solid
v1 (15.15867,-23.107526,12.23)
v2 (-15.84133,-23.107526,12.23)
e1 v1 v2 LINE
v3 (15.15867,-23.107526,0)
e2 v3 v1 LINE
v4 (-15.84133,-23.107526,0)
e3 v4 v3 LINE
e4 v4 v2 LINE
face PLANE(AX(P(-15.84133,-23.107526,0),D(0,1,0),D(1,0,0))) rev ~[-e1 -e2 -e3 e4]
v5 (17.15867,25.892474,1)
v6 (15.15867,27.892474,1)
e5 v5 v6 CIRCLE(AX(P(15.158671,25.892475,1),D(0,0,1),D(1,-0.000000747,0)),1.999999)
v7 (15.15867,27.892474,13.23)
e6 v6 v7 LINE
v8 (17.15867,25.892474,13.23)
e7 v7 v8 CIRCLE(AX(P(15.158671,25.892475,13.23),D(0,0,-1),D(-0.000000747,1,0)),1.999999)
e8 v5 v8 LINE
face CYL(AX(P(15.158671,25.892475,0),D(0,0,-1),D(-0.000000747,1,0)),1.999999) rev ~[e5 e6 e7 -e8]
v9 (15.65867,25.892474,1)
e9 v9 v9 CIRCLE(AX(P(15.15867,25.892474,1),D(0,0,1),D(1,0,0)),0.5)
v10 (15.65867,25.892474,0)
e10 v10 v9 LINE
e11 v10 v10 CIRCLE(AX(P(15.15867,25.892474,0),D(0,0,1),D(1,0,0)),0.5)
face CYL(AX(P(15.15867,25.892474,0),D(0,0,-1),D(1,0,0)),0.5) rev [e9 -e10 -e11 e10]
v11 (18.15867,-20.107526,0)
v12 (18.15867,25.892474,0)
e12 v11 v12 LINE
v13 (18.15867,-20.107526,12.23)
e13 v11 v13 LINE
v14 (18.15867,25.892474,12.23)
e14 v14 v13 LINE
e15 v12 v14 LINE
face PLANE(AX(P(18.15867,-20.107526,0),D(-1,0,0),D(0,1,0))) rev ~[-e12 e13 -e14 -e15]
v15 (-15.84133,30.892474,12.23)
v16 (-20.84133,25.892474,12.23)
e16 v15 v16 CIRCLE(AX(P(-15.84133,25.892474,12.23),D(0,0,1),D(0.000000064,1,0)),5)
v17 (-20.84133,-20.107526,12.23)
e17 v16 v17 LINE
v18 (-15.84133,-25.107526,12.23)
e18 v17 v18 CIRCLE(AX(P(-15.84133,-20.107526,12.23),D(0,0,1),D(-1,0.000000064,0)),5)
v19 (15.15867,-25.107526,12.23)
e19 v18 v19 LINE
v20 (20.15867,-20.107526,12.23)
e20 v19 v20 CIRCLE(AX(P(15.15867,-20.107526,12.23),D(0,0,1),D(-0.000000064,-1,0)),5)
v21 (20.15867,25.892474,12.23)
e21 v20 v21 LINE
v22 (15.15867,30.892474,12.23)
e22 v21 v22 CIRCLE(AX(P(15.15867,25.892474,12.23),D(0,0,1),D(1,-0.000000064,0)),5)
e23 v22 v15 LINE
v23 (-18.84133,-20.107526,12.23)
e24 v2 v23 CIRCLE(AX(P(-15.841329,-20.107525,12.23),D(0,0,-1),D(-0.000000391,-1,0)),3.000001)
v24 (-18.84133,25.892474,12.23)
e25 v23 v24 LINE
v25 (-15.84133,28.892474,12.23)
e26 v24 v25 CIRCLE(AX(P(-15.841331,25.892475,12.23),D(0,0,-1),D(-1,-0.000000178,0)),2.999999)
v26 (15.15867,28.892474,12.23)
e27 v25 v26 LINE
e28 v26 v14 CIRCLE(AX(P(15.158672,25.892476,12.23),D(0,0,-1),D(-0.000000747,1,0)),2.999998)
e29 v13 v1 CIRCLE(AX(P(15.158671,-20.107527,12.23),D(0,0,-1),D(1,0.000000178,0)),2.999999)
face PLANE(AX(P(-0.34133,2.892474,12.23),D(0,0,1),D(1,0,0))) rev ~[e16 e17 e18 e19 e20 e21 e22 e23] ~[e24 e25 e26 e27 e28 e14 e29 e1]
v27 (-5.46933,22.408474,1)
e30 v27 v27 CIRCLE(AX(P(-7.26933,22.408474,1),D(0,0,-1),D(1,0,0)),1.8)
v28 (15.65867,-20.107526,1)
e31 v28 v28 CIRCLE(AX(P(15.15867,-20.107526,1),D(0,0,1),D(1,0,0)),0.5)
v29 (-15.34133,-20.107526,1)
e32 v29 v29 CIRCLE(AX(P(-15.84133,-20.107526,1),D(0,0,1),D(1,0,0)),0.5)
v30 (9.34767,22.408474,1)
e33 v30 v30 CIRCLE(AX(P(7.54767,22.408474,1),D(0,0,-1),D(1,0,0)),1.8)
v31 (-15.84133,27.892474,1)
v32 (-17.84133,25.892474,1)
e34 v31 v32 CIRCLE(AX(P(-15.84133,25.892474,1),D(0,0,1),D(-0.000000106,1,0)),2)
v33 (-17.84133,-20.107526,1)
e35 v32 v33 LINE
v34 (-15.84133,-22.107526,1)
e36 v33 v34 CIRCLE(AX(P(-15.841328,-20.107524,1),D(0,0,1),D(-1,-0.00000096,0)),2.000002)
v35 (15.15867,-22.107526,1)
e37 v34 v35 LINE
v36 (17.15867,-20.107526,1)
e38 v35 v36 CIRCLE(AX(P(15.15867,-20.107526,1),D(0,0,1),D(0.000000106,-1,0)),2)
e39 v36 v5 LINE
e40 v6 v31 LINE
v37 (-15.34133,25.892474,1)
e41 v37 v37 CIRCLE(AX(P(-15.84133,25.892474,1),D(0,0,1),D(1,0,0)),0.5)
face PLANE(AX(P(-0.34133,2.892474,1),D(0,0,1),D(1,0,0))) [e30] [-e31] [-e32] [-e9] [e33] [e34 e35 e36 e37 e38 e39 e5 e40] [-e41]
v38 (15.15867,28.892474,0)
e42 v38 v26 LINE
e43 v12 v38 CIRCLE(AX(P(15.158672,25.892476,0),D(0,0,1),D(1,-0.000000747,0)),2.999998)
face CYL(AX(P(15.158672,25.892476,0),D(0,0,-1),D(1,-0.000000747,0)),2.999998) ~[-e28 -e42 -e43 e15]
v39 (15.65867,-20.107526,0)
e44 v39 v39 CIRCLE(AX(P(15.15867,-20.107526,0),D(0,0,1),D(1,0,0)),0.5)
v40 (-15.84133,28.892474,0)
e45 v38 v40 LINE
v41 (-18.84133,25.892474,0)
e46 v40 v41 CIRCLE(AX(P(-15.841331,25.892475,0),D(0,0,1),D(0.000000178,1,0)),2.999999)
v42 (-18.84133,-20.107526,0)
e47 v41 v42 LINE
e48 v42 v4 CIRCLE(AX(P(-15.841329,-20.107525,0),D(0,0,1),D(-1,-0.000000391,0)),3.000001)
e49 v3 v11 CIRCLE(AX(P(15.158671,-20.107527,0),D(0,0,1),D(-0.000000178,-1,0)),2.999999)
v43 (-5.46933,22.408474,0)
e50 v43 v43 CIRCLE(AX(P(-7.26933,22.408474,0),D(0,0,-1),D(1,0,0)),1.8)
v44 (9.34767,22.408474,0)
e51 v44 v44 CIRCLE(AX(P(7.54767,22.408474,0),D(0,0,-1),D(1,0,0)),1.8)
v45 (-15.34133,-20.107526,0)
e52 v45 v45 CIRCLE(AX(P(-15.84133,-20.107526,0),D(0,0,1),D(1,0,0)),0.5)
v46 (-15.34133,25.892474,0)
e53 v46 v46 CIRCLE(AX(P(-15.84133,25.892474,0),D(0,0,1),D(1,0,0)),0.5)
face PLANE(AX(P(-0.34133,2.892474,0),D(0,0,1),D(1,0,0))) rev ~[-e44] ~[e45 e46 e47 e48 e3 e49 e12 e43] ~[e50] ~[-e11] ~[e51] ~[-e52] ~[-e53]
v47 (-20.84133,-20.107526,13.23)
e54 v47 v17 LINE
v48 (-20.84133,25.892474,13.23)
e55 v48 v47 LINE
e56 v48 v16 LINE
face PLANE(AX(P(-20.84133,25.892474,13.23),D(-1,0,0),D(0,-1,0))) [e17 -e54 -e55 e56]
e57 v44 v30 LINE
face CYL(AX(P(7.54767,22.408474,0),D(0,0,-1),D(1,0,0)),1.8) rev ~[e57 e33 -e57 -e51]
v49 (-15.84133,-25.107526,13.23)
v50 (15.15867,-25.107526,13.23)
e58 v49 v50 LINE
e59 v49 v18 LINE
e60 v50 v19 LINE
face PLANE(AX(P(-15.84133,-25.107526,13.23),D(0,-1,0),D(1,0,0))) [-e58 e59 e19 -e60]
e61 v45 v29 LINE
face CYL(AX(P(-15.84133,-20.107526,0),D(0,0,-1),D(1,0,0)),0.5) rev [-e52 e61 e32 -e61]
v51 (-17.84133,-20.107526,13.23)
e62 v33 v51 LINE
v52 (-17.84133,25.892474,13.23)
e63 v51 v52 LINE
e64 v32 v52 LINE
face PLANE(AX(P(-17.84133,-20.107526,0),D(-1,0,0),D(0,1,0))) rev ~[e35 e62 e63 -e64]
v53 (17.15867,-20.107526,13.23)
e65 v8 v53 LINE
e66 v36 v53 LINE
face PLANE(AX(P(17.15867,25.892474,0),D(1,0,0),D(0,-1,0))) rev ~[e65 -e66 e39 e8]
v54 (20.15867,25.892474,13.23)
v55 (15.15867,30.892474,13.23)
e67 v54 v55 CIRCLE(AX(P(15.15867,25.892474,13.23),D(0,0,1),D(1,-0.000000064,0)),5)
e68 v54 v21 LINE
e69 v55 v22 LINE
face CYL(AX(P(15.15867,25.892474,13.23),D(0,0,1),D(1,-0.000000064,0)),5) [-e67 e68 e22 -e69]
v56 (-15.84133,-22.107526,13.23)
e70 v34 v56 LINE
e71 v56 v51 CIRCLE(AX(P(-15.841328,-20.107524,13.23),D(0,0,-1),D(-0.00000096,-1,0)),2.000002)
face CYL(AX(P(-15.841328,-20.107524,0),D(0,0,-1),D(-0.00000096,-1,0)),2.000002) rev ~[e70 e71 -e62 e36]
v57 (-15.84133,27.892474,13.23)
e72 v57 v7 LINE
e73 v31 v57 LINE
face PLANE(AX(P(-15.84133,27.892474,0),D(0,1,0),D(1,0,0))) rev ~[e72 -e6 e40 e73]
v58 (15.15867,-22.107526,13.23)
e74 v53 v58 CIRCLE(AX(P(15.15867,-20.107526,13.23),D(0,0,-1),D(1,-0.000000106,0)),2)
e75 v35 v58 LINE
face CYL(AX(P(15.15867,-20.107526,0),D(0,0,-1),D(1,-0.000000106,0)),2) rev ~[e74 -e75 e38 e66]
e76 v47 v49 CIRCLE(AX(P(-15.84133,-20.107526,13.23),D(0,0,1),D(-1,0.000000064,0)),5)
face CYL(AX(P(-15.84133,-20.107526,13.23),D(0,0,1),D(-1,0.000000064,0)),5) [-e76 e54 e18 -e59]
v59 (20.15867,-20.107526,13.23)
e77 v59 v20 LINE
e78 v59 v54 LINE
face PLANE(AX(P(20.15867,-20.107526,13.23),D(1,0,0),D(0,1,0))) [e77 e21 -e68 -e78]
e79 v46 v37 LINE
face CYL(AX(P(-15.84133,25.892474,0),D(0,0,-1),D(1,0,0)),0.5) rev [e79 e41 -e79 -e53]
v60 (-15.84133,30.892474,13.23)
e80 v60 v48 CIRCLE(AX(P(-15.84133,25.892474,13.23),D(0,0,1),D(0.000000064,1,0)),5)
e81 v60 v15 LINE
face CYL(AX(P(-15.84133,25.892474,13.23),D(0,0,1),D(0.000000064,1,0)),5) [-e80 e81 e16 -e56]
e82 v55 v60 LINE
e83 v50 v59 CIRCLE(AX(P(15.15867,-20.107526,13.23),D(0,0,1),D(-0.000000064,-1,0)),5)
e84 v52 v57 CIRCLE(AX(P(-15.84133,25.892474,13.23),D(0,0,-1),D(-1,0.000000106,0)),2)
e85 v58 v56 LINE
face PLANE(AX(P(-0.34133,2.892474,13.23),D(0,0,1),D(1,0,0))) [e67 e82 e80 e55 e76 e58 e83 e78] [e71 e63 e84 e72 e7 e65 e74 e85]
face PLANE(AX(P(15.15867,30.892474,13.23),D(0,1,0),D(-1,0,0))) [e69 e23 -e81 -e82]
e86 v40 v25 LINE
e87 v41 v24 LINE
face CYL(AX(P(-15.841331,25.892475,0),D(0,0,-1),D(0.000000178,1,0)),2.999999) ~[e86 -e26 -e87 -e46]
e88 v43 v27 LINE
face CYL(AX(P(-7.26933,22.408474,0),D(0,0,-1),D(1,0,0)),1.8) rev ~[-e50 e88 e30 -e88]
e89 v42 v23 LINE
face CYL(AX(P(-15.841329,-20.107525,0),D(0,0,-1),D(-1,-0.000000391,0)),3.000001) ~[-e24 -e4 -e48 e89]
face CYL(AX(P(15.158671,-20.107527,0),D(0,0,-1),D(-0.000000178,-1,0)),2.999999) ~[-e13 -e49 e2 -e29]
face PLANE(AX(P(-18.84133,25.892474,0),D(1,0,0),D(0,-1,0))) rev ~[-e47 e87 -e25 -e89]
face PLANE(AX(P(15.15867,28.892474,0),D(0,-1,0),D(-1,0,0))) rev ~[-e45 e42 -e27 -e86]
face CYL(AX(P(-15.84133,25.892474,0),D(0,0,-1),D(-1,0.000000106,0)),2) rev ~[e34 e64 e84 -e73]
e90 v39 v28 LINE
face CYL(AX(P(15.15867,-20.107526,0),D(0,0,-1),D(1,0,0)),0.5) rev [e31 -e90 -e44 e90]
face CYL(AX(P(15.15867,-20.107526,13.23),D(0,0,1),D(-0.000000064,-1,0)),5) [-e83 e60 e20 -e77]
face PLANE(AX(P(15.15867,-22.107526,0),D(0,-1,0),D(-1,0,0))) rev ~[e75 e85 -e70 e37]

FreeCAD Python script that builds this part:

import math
import FreeCAD as App
import Part
import Sketcher

V = App.Vector
Q = App.Units.Quantity

doc = App.newDocument("Part")
body = doc.addObject("PartDesign::Body", "Body")

sketch1 = body.newObject("Sketcher::SketchObject", "Sketch")
sketch1.AttachmentSupport = (doc.getObject("XY_Plane"), [""])
sketch1.MapMode = "FlatFace"
sketch1.addGeometry([
    Part.ArcOfCircle(Part.Circle(V(-15.8, -20.1, 0), V(0, 0, 1), 2), math.radians(-180), math.radians(-90)),
    Part.LineSegment(V(-15.8, -22.1, 0), V(15.2, -22.1, 0)),
    Part.ArcOfCircle(Part.Circle(V(15.2, -20.1, 0), V(0, 0, 1), 2), math.radians(-90), math.radians(0)),
    Part.LineSegment(V(17.2, -20.1, 0), V(17.2, 25.9, 0)),
    Part.ArcOfCircle(Part.Circle(V(15.2, 25.9, 0), V(0, 0, 1), 2), math.radians(0), math.radians(90)),
    Part.LineSegment(V(15.2, 27.9, 0), V(-15.8, 27.9, 0)),
    Part.ArcOfCircle(Part.Circle(V(-15.8, 25.9, 0), V(0, 0, 1), 2), math.radians(90), math.radians(180)),
    Part.LineSegment(V(-17.8, 25.9, 0), V(-17.8, -20.1, 0)),
    Part.Circle(V(-15.8, -20.1, 0), V(0, 0, 1), 0.5),
    Part.Circle(V(15.2, -20.1, 0), V(0, 0, 1), 0.5),
    Part.Circle(V(-15.8, 25.9, 0), V(0, 0, 1), 0.5),
    Part.Circle(V(15.2, 25.9, 0), V(0, 0, 1), 0.5),
], False)
sketch1.addConstraint([
    Sketcher.Constraint("Tangent", 0, 2, 1, 1),
    Sketcher.Constraint("Tangent", 1, 2, 2, 1),
    Sketcher.Constraint("Tangent", 2, 2, 3, 1),
    Sketcher.Constraint("Tangent", 3, 2, 4, 1),
    Sketcher.Constraint("Tangent", 4, 2, 5, 1),
    Sketcher.Constraint("Tangent", 5, 2, 6, 1),
    Sketcher.Constraint("Tangent", 6, 2, 7, 1),
    Sketcher.Constraint("Tangent", 7, 2, 0, 1),
    Sketcher.Constraint("Horizontal", 1),
    Sketcher.Constraint("Vertical", 3),
    Sketcher.Constraint("Horizontal", 5),
    Sketcher.Constraint("Vertical", 7),
    Sketcher.Constraint("Coincident", 8, 3, 0, 3),
    Sketcher.Constraint("Coincident", 9, 3, 2, 3),
    Sketcher.Constraint("Coincident", 10, 3, 6, 3),
    Sketcher.Constraint("Coincident", 11, 3, 4, 3),
    Sketcher.Constraint("Equal", 0, 2),
    Sketcher.Constraint("Equal", 2, 4),
    Sketcher.Constraint("Equal", 4, 6),
    Sketcher.Constraint("Equal", 8, 9),
    Sketcher.Constraint("Equal", 9, 10),
    Sketcher.Constraint("Equal", 10, 11),
    Sketcher.Constraint("Diameter", 8, Q("1 mm")),
    Sketcher.Constraint("Radius", 0, Q("2.000002 mm")),
    Sketcher.Constraint("DistanceX", 1, 1, 1, 2, Q("31 mm")),
    Sketcher.Constraint("DistanceY", 3, 1, 3, 2, Q("46 mm")),
    Sketcher.Constraint("DistanceX", 0, 3, -1, 1, Q("15.841328 mm")),
    Sketcher.Constraint("DistanceY", 0, 3, -1, 1, Q("20.107524 mm")),
])
pad1 = body.newObject("PartDesign::Pad", "Pad")
pad1.Profile = sketch1
pad1.Length = 1

sketch2 = body.newObject("Sketcher::SketchObject", "Sketch001")
sketch2.AttachmentSupport = (doc.getObject("XY_Plane"), [""])
sketch2.MapMode = "FlatFace"
sketch2.addGeometry([
    Part.LineSegment(V(15.2, 28.9, 0), V(-15.8, 28.9, 0)),
    Part.ArcOfCircle(Part.Circle(V(-15.8, 25.9, 0), V(0, 0, 1), 3), math.radians(90), math.radians(180)),
    Part.LineSegment(V(-18.8, 25.9, 0), V(-18.8, -20.1, 0)),
    Part.ArcOfCircle(Part.Circle(V(-15.8, -20.1, 0), V(0, 0, 1), 3), math.radians(-180), math.radians(-90)),
    Part.LineSegment(V(-15.8, -23.1, 0), V(15.2, -23.1, 0)),
    Part.ArcOfCircle(Part.Circle(V(15.2, -20.1, 0), V(0, 0, 1), 3), math.radians(-90), math.radians(0)),
    Part.LineSegment(V(18.2, -20.1, 0), V(18.2, 25.9, 0)),
    Part.ArcOfCircle(Part.Circle(V(15.2, 25.9, 0), V(0, 0, 1), 3), math.radians(0), math.radians(90)),
    Part.ArcOfCircle(Part.Circle(V(15.2, -20.1, 0), V(0, 0, 1), 2), math.radians(-90), math.radians(0)),
    Part.LineSegment(V(15.2, -22.1, 0), V(-15.8, -22.1, 0)),
    Part.ArcOfCircle(Part.Circle(V(-15.8, -20.1, 0), V(0, 0, 1), 2), math.radians(-180), math.radians(-90)),
    Part.LineSegment(V(-17.8, -20.1, 0), V(-17.8, 25.9, 0)),
    Part.ArcOfCircle(Part.Circle(V(-15.8, 25.9, 0), V(0, 0, 1), 2), math.radians(90), math.radians(180)),
    Part.LineSegment(V(-15.8, 27.9, 0), V(15.2, 27.9, 0)),
    Part.ArcOfCircle(Part.Circle(V(15.2, 25.9, 0), V(0, 0, 1), 2), math.radians(0), math.radians(90)),
    Part.LineSegment(V(17.2, 25.9, 0), V(17.2, -20.1, 0)),
], False)
sketch2.addConstraint([
    Sketcher.Constraint("Tangent", 0, 2, 1, 1),
    Sketcher.Constraint("Tangent", 1, 2, 2, 1),
    Sketcher.Constraint("Tangent", 2, 2, 3, 1),
    Sketcher.Constraint("Tangent", 3, 2, 4, 1),
    Sketcher.Constraint("Tangent", 4, 2, 5, 1),
    Sketcher.Constraint("Tangent", 5, 2, 6, 1),
    Sketcher.Constraint("Tangent", 6, 2, 7, 1),
    Sketcher.Constraint("Tangent", 7, 2, 0, 1),
    Sketcher.Constraint("Tangent", 8, 1, 9, 1),
    Sketcher.Constraint("Tangent", 9, 2, 10, 2),
    Sketcher.Constraint("Tangent", 10, 1, 11, 1),
    Sketcher.Constraint("Tangent", 11, 2, 12, 2),
    Sketcher.Constraint("Tangent", 12, 1, 13, 1),
    Sketcher.Constraint("Tangent", 13, 2, 14, 2),
    Sketcher.Constraint("Tangent", 14, 1, 15, 1),
    Sketcher.Constraint("Tangent", 15, 2, 8, 2),
    Sketcher.Constraint("Horizontal", 0),
    Sketcher.Constraint("Vertical", 2),
    Sketcher.Constraint("Horizontal", 4),
    Sketcher.Constraint("Vertical", 6),
    Sketcher.Constraint("Horizontal", 9),
    Sketcher.Constraint("Vertical", 11),
    Sketcher.Constraint("Horizontal", 13),
    Sketcher.Constraint("Vertical", 15),
    Sketcher.Constraint("Coincident", 8, 3, 5, 3),
    Sketcher.Constraint("Coincident", 10, 3, 3, 3),
    Sketcher.Constraint("Coincident", 12, 3, 1, 3),
    Sketcher.Constraint("Equal", 1, 3),
    Sketcher.Constraint("Equal", 3, 5),
    Sketcher.Constraint("Equal", 5, 7),
    Sketcher.Constraint("Equal", 12, 14),
    Sketcher.Constraint("Radius", 1, Q("2.999999 mm")),
    Sketcher.Constraint("Radius", 8, Q("2 mm")),
    Sketcher.Constraint("DistanceX", 0, 2, 0, 1, Q("31 mm")),
    Sketcher.Constraint("DistanceY", 2, 2, 2, 1, Q("46 mm")),
    Sketcher.Constraint("DistanceX", 1, 3, -1, 1, Q("15.841331 mm")),
    Sketcher.Constraint("DistanceY", -1, 1, 1, 3, Q("25.892475 mm")),
])
pad2 = body.newObject("PartDesign::Pad", "Pad001")
pad2.Profile = sketch2
pad2.Length = 13.23

sketch3 = body.newObject("Sketcher::SketchObject", "Sketch002")
sketch3.AttachmentSupport = (doc.getObject("XY_Plane"), [""])
sketch3.MapMode = "FlatFace"
sketch3.addGeometry([
    Part.Circle(V(-7.3, 22.4, 0), V(0, 0, 1), 1.8),
    Part.Circle(V(7.5, 22.4, 0), V(0, 0, 1), 1.8),
], False)
sketch3.addConstraint([
    Sketcher.Constraint("Equal", 0, 1),
    Sketcher.Constraint("Horizontal", 0, 3, 1, 3),
    Sketcher.Constraint("Diameter", 0, Q("3.6 mm")),
    Sketcher.Constraint("DistanceX", 0, 3, 1, 3, Q("14.817 mm")),
    Sketcher.Constraint("DistanceX", 0, 3, -1, 1, Q("7.26933 mm")),
    Sketcher.Constraint("DistanceY", -1, 1, 0, 3, Q("22.408474 mm")),
])
pocket1 = body.newObject("PartDesign::Pocket", "Pocket")
pocket1.Profile = sketch3
pocket1.Length = 1
pocket1.Reversed = True

sketch4 = body.newObject("Sketcher::SketchObject", "Sketch003")
sketch4.AttachmentSupport = (doc.getObject("XY_Plane"), [""])
sketch4.MapMode = "FlatFace"
sketch4.AttachmentOffset = App.Placement(V(0, 0, 13.23), App.Rotation())
sketch4.addGeometry([
    Part.LineSegment(V(15.2, 30.9, 0), V(-15.8, 30.9, 0)),
    Part.ArcOfCircle(Part.Circle(V(-15.8, 25.9, 0), V(0, 0, 1), 5), math.radians(90), math.radians(180)),
    Part.LineSegment(V(-20.8, 25.9, 0), V(-20.8, -20.1, 0)),
    Part.ArcOfCircle(Part.Circle(V(-15.8, -20.1, 0), V(0, 0, 1), 5), math.radians(180), math.radians(270)),
    Part.LineSegment(V(-15.8, -25.1, 0), V(15.2, -25.1, 0)),
    Part.ArcOfCircle(Part.Circle(V(15.2, -20.1, 0), V(0, 0, 1), 5), math.radians(-90), math.radians(0)),
    Part.LineSegment(V(20.2, -20.1, 0), V(20.2, 25.9, 0)),
    Part.ArcOfCircle(Part.Circle(V(15.2, 25.9, 0), V(0, 0, 1), 5), math.radians(0), math.radians(90)),
    Part.LineSegment(V(-15.8, 28.9, 0), V(15.2, 28.9, 0)),
    Part.ArcOfCircle(Part.Circle(V(15.2, 25.9, 0), V(0, 0, 1), 3), math.radians(0), math.radians(90)),
    Part.LineSegment(V(18.2, 25.9, 0), V(18.2, -20.1, 0)),
    Part.ArcOfCircle(Part.Circle(V(15.2, -20.1, 0), V(0, 0, 1), 3), math.radians(-90), math.radians(0)),
    Part.LineSegment(V(15.2, -23.1, 0), V(-15.8, -23.1, 0)),
    Part.ArcOfCircle(Part.Circle(V(-15.8, -20.1, 0), V(0, 0, 1), 3), math.radians(-180), math.radians(-90)),
    Part.LineSegment(V(-18.8, -20.1, 0), V(-18.8, 25.9, 0)),
    Part.ArcOfCircle(Part.Circle(V(-15.8, 25.9, 0), V(0, 0, 1), 3), math.radians(90), math.radians(180)),
], False)
sketch4.addConstraint([
    Sketcher.Constraint("Tangent", 0, 2, 1, 1),
    Sketcher.Constraint("Tangent", 1, 2, 2, 1),
    Sketcher.Constraint("Tangent", 2, 2, 3, 1),
    Sketcher.Constraint("Tangent", 3, 2, 4, 1),
    Sketcher.Constraint("Tangent", 4, 2, 5, 1),
    Sketcher.Constraint("Tangent", 5, 2, 6, 1),
    Sketcher.Constraint("Tangent", 6, 2, 7, 1),
    Sketcher.Constraint("Tangent", 7, 2, 0, 1),
    Sketcher.Constraint("Tangent", 8, 2, 9, 2),
    Sketcher.Constraint("Tangent", 9, 1, 10, 1),
    Sketcher.Constraint("Tangent", 10, 2, 11, 2),
    Sketcher.Constraint("Tangent", 11, 1, 12, 1),
    Sketcher.Constraint("Tangent", 12, 2, 13, 2),
    Sketcher.Constraint("Tangent", 13, 1, 14, 1),
    Sketcher.Constraint("Tangent", 14, 2, 15, 2),
    Sketcher.Constraint("Tangent", 15, 1, 8, 1),
    Sketcher.Constraint("Horizontal", 0),
    Sketcher.Constraint("Vertical", 2),
    Sketcher.Constraint("Horizontal", 4),
    Sketcher.Constraint("Vertical", 6),
    Sketcher.Constraint("Horizontal", 8),
    Sketcher.Constraint("Vertical", 10),
    Sketcher.Constraint("Horizontal", 12),
    Sketcher.Constraint("Vertical", 14),
    Sketcher.Constraint("Coincident", 9, 3, 7, 3),
    Sketcher.Constraint("Coincident", 11, 3, 5, 3),
    Sketcher.Constraint("Coincident", 13, 3, 3, 3),
    Sketcher.Constraint("Equal", 1, 3),
    Sketcher.Constraint("Equal", 3, 5),
    Sketcher.Constraint("Equal", 5, 7),
    Sketcher.Constraint("Equal", 13, 15),
    Sketcher.Constraint("Radius", 1, Q("5 mm")),
    Sketcher.Constraint("Radius", 11, Q("2.999999 mm")),
    Sketcher.Constraint("DistanceX", 0, 2, 0, 1, Q("31 mm")),
    Sketcher.Constraint("DistanceY", 2, 2, 2, 1, Q("46 mm")),
    Sketcher.Constraint("DistanceX", 1, 3, -1, 1, Q("15.84133 mm")),
    Sketcher.Constraint("DistanceY", -1, 1, 1, 3, Q("25.892474 mm")),
])
pad3 = body.newObject("PartDesign::Pad", "Pad002")
pad3.Profile = sketch4
pad3.Length = 1
pad3.Reversed = True

doc.recompute()
